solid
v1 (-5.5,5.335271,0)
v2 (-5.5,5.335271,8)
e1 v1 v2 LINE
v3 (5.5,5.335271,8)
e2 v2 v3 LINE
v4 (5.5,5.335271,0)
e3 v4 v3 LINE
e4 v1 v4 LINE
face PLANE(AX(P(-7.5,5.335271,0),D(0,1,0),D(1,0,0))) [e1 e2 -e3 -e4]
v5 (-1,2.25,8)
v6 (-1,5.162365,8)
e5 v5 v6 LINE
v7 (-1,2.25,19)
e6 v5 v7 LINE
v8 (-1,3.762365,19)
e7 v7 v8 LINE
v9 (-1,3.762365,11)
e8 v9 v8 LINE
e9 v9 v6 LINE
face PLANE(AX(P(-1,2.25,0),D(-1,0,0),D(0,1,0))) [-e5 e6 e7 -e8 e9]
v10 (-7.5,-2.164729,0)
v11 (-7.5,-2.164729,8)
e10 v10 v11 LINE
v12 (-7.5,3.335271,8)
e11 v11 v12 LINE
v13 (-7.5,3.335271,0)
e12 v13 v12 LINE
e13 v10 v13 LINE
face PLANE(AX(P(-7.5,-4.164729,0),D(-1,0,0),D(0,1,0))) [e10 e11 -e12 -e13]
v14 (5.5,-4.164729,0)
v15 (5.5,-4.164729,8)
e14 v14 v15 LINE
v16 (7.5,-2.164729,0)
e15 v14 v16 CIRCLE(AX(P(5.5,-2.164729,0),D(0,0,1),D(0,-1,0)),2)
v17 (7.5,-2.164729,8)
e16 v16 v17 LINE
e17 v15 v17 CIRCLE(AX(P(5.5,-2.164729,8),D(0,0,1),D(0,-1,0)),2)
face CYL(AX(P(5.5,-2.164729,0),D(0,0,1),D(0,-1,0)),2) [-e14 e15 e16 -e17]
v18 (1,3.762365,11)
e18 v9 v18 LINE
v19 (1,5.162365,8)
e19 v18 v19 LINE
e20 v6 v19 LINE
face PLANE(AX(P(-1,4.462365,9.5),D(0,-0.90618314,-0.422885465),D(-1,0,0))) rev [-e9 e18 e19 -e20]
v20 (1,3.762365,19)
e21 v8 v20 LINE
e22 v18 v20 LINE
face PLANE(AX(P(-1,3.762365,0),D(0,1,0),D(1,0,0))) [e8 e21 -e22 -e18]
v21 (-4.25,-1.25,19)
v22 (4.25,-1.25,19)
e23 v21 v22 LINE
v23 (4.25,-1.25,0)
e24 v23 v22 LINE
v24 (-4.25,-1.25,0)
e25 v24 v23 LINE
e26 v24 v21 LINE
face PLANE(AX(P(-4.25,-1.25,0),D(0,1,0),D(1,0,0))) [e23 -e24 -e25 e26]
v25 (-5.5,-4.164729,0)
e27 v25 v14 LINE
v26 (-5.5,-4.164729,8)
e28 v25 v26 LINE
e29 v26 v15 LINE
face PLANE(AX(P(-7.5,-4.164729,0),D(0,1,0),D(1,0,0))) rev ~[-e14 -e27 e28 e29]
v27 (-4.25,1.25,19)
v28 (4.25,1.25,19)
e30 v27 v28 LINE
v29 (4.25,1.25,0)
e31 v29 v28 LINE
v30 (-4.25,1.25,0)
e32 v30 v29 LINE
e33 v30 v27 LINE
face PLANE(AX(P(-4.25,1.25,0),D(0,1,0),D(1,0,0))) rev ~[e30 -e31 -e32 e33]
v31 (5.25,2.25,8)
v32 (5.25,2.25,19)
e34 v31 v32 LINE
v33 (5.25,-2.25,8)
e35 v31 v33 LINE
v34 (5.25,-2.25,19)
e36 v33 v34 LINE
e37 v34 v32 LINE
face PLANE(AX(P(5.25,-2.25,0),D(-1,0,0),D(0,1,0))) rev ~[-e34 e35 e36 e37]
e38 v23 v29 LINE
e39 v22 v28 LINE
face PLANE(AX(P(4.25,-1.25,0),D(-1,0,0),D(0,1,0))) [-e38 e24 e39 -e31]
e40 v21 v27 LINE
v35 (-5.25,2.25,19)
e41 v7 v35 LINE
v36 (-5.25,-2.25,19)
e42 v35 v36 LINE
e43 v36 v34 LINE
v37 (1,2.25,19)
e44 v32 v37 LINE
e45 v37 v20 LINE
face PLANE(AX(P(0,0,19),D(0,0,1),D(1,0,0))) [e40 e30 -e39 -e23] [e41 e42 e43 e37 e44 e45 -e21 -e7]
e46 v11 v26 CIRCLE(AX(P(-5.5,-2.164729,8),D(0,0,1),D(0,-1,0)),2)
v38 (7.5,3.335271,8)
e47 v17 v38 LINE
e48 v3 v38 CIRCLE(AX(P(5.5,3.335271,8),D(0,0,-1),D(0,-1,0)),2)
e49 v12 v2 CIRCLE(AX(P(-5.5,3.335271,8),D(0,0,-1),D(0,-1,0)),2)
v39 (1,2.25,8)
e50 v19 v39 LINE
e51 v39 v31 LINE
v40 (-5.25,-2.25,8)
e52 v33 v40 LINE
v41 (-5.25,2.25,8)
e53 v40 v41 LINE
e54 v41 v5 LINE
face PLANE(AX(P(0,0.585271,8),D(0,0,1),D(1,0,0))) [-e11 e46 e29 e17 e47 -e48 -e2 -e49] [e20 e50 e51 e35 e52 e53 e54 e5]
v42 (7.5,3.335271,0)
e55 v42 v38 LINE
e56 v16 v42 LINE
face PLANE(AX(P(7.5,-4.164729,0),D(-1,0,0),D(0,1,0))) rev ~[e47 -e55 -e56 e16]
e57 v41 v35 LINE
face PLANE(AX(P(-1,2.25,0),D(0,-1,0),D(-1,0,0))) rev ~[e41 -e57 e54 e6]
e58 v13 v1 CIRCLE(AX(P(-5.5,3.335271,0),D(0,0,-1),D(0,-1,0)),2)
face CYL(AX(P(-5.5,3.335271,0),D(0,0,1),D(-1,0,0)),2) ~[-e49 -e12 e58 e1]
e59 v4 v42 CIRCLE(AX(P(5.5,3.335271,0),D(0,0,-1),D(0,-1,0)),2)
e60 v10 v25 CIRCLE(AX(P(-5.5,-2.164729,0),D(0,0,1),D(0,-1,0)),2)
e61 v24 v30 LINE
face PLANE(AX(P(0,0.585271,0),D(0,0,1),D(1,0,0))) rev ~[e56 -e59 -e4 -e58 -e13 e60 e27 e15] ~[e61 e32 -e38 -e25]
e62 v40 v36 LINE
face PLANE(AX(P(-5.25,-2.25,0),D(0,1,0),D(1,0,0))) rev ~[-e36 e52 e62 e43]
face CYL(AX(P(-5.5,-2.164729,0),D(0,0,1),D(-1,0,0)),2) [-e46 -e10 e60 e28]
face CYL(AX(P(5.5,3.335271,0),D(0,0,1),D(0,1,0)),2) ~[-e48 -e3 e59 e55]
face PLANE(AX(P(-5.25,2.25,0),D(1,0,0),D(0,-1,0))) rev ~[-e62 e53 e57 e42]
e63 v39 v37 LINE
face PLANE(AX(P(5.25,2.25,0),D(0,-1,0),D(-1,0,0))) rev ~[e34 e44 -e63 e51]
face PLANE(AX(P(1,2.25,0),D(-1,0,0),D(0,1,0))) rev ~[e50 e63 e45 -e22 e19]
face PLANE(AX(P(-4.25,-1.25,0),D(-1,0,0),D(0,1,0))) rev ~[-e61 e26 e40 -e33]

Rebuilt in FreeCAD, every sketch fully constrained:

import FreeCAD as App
import Part
import Sketcher
from FreeCAD import Vector
Q = App.Units.Quantity


def edges_at(feature, points):
    """Names of the edges that pass closest to the given points."""
    edges = feature.Shape.Edges
    near = lambda p: min(range(len(edges)), key=lambda i: edges[i].distToShape(Part.Vertex(*p))[0])
    return sorted({f"Edge{near(p) + 1}" for p in points})

doc = App.newDocument("Part")
body = doc.addObject("PartDesign::Body", "Body")

sketch1 = body.newObject("Sketcher::SketchObject", "Sketch")
sketch1.AttachmentSupport = (doc.getObject("XY_Plane"), [""])
sketch1.MapMode = "FlatFace"
sketch1.addGeometry(Part.LineSegment(Vector(-5.2, -2.2, 0), Vector(5.2, -2.2, 0)), False)
sketch1.addGeometry(Part.LineSegment(Vector(5.2, -2.2, 0), Vector(5.2, 2.2, 0)), False)
sketch1.addGeometry(Part.LineSegment(Vector(5.2, 2.2, 0), Vector(1, 2.2, 0)), False)
sketch1.addGeometry(Part.LineSegment(Vector(1, 2.2, 0), Vector(1, 3.8, 0)), False)
sketch1.addGeometry(Part.LineSegment(Vector(1, 3.8, 0), Vector(-1, 3.8, 0)), False)
sketch1.addGeometry(Part.LineSegment(Vector(-1, 3.8, 0), Vector(-1, 2.2, 0)), False)
sketch1.addGeometry(Part.LineSegment(Vector(-1, 2.2, 0), Vector(-5.2, 2.2, 0)), False)
sketch1.addGeometry(Part.LineSegment(Vector(-5.2, 2.2, 0), Vector(-5.2, -2.2, 0)), False)
sketch1.addGeometry(Part.LineSegment(Vector(4.2, -1.2, 0), Vector(-4.2, -1.2, 0)), False)
sketch1.addGeometry(Part.LineSegment(Vector(-4.2, -1.2, 0), Vector(-4.2, 1.2, 0)), False)
sketch1.addGeometry(Part.LineSegment(Vector(-4.2, 1.2, 0), Vector(4.2, 1.2, 0)), False)
sketch1.addGeometry(Part.LineSegment(Vector(4.2, 1.2, 0), Vector(4.2, -1.2, 0)), False)
sketch1.addConstraint(Sketcher.Constraint("Coincident", 0, 2, 1, 1))
sketch1.addConstraint(Sketcher.Constraint("Coincident", 1, 2, 2, 1))
sketch1.addConstraint(Sketcher.Constraint("Coincident", 2, 2, 3, 1))
sketch1.addConstraint(Sketcher.Constraint("Coincident", 3, 2, 4, 1))
sketch1.addConstraint(Sketcher.Constraint("Coincident", 4, 2, 5, 1))
sketch1.addConstraint(Sketcher.Constraint("Coincident", 5, 2, 6, 1))
sketch1.addConstraint(Sketcher.Constraint("Coincident", 6, 2, 7, 1))
sketch1.addConstraint(Sketcher.Constraint("Coincident", 7, 2, 0, 1))
sketch1.addConstraint(Sketcher.Constraint("Coincident", 8, 2, 9, 1))
sketch1.addConstraint(Sketcher.Constraint("Coincident", 9, 2, 10, 1))
sketch1.addConstraint(Sketcher.Constraint("Coincident", 10, 2, 11, 1))
sketch1.addConstraint(Sketcher.Constraint("Coincident", 11, 2, 8, 1))
sketch1.addConstraint(Sketcher.Constraint("Horizontal", 0))
sketch1.addConstraint(Sketcher.Constraint("Vertical", 1))
sketch1.addConstraint(Sketcher.Constraint("Horizontal", 2))
sketch1.addConstraint(Sketcher.Constraint("Vertical", 3))
sketch1.addConstraint(Sketcher.Constraint("Horizontal", 4))
sketch1.addConstraint(Sketcher.Constraint("Vertical", 5))
sketch1.addConstraint(Sketcher.Constraint("Horizontal", 6))
sketch1.addConstraint(Sketcher.Constraint("Vertical", 7))
sketch1.addConstraint(Sketcher.Constraint("Horizontal", 8))
sketch1.addConstraint(Sketcher.Constraint("Vertical", 9))
sketch1.addConstraint(Sketcher.Constraint("Horizontal", 10))
sketch1.addConstraint(Sketcher.Constraint("Vertical", 11))
sketch1.addConstraint(Sketcher.Constraint("Symmetric", 0, 2, 6, 2, -1, 1))
sketch1.addConstraint(Sketcher.Constraint("Symmetric", 8, 2, 10, 2, -1, 1))
sketch1.addConstraint(Sketcher.Constraint("Symmetric", 2, 2, 5, 2, -2))
sketch1.addConstraint(Sketcher.Constraint("DistanceX", 4, 2, 4, 1, Q("2 mm")))
sketch1.addConstraint(Sketcher.Constraint("DistanceX", 0, 1, 0, 2, Q("10.5 mm")))
sketch1.addConstraint(Sketcher.Constraint("DistanceX", 8, 2, 8, 1, Q("8.5 mm")))
sketch1.addConstraint(Sketcher.Constraint("DistanceY", 1, 1, 1, 2, Q("4.5 mm")))
sketch1.addConstraint(Sketcher.Constraint("DistanceY", 9, 1, 9, 2, Q("2.5 mm")))
sketch1.addConstraint(Sketcher.Constraint("DistanceY", 3, 1, 3, 2, Q("1.512365 mm")))
pad1 = body.newObject("PartDesign::Pad", "Pad")
pad1.Profile = sketch1
pad1.Length = 19

sketch2 = body.newObject("Sketcher::SketchObject", "Sketch001")
sketch2.AttachmentSupport = (doc.getObject("XY_Plane"), [""])
sketch2.MapMode = "FlatFace"
sketch2.addGeometry(Part.LineSegment(Vector(-7.5, 5.3, 0), Vector(-7.5, -4.2, 0)), False)
sketch2.addGeometry(Part.LineSegment(Vector(-7.5, -4.2, 0), Vector(7.5, -4.2, 0)), False)
sketch2.addGeometry(Part.LineSegment(Vector(7.5, -4.2, 0), Vector(7.5, 5.3, 0)), False)
sketch2.addGeometry(Part.LineSegment(Vector(7.5, 5.3, 0), Vector(-7.5, 5.3, 0)), False)
sketch2.addGeometry(Part.LineSegment(Vector(1, 2.2, 0), Vector(5.2, 2.2, 0)), False)
sketch2.addGeometry(Part.LineSegment(Vector(5.2, 2.2, 0), Vector(5.2, -2.2, 0)), False)
sketch2.addGeometry(Part.LineSegment(Vector(5.2, -2.2, 0), Vector(-5.2, -2.2, 0)), False)
sketch2.addGeometry(Part.LineSegment(Vector(-5.2, -2.2, 0), Vector(-5.2, 2.2, 0)), False)
sketch2.addGeometry(Part.LineSegment(Vector(-5.2, 2.2, 0), Vector(-1, 2.2, 0)), False)
sketch2.addGeometry(Part.LineSegment(Vector(-1, 2.2, 0), Vector(-1, 3.8, 0)), False)
sketch2.addGeometry(Part.LineSegment(Vector(-1, 3.8, 0), Vector(1, 3.8, 0)), False)
sketch2.addGeometry(Part.LineSegment(Vector(1, 3.8, 0), Vector(1, 2.2, 0)), False)
sketch2.addConstraint(Sketcher.Constraint("Coincident", 0, 2, 1, 1))
sketch2.addConstraint(Sketcher.Constraint("Coincident", 1, 2, 2, 1))
sketch2.addConstraint(Sketcher.Constraint("Coincident", 2, 2, 3, 1))
sketch2.addConstraint(Sketcher.Constraint("Coincident", 3, 2, 0, 1))
sketch2.addConstraint(Sketcher.Constraint("Coincident", 4, 2, 5, 1))
sketch2.addConstraint(Sketcher.Constraint("Coincident", 5, 2, 6, 1))
sketch2.addConstraint(Sketcher.Constraint("Coincident", 6, 2, 7, 1))
sketch2.addConstraint(Sketcher.Constraint("Coincident", 7, 2, 8, 1))
sketch2.addConstraint(Sketcher.Constraint("Coincident", 8, 2, 9, 1))
sketch2.addConstraint(Sketcher.Constraint("Coincident", 9, 2, 10, 1))
sketch2.addConstraint(Sketcher.Constraint("Coincident", 10, 2, 11, 1))
sketch2.addConstraint(Sketcher.Constraint("Coincident", 11, 2, 4, 1))
sketch2.addConstraint(Sketcher.Constraint("Vertical", 0))
sketch2.addConstraint(Sketcher.Constraint("Horizontal", 1))
sketch2.addConstraint(Sketcher.Constraint("Vertical", 2))
sketch2.addConstraint(Sketcher.Constraint("Horizontal", 3))
sketch2.addConstraint(Sketcher.Constraint("Horizontal", 4))
sketch2.addConstraint(Sketcher.Constraint("Vertical", 5))
sketch2.addConstraint(Sketcher.Constraint("Horizontal", 6))
sketch2.addConstraint(Sketcher.Constraint("Vertical", 7))
sketch2.addConstraint(Sketcher.Constraint("Horizontal", 8))
sketch2.addConstraint(Sketcher.Constraint("Vertical", 9))
sketch2.addConstraint(Sketcher.Constraint("Horizontal", 10))
sketch2.addConstraint(Sketcher.Constraint("Vertical", 11))
sketch2.addConstraint(Sketcher.Constraint("Symmetric", 4, 2, 6, 2, -1, 1))
sketch2.addConstraint(Sketcher.Constraint("Symmetric", 8, 2, 11, 2, -2))
sketch2.addConstraint(Sketcher.Constraint("DistanceX", 1, 1, 1, 2, Q("15 mm")))
sketch2.addConstraint(Sketcher.Constraint("DistanceX", 10, 1, 10, 2, Q("2 mm")))
sketch2.addConstraint(Sketcher.Constraint("DistanceX", 6, 2, 6, 1, Q("10.5 mm")))
sketch2.addConstraint(Sketcher.Constraint("DistanceY", 0, 2, 0, 1, Q("9.5 mm")))
sketch2.addConstraint(Sketcher.Constraint("DistanceY", 5, 2, 5, 1, Q("4.5 mm")))
sketch2.addConstraint(Sketcher.Constraint("DistanceX", 0, 2, -1, 1, Q("7.5 mm")))
sketch2.addConstraint(Sketcher.Constraint("DistanceY", 9, 1, 9, 2, Q("1.512365 mm")))
sketch2.addConstraint(Sketcher.Constraint("DistanceY", 0, 2, -1, 1, Q("4.164729 mm")))
pad2 = body.newObject("PartDesign::Pad", "Pad001")
pad2.Profile = sketch2
pad2.Length = 8
doc.recompute()

fillet = body.newObject("PartDesign::Fillet", "Fillet")
fillet.Base = (pad2, edges_at(pad2, [
    (-7.5, -4.165, 4),
    (7.5, -4.165, 4),
    (7.5, 5.335, 4),
    (-7.5, 5.335, 4),
]))
fillet.Radius = 2
doc.recompute()

chamfer = body.newObject("PartDesign::Chamfer", "Chamfer")
chamfer.Base = (fillet, edges_at(fillet, [(0, 3.762, 8)]))
chamfer.ChamferType = "Two distances"
chamfer.Size = 3
chamfer.Size2 = 1.4
chamfer.FlipDirection = True

doc.recompute()
